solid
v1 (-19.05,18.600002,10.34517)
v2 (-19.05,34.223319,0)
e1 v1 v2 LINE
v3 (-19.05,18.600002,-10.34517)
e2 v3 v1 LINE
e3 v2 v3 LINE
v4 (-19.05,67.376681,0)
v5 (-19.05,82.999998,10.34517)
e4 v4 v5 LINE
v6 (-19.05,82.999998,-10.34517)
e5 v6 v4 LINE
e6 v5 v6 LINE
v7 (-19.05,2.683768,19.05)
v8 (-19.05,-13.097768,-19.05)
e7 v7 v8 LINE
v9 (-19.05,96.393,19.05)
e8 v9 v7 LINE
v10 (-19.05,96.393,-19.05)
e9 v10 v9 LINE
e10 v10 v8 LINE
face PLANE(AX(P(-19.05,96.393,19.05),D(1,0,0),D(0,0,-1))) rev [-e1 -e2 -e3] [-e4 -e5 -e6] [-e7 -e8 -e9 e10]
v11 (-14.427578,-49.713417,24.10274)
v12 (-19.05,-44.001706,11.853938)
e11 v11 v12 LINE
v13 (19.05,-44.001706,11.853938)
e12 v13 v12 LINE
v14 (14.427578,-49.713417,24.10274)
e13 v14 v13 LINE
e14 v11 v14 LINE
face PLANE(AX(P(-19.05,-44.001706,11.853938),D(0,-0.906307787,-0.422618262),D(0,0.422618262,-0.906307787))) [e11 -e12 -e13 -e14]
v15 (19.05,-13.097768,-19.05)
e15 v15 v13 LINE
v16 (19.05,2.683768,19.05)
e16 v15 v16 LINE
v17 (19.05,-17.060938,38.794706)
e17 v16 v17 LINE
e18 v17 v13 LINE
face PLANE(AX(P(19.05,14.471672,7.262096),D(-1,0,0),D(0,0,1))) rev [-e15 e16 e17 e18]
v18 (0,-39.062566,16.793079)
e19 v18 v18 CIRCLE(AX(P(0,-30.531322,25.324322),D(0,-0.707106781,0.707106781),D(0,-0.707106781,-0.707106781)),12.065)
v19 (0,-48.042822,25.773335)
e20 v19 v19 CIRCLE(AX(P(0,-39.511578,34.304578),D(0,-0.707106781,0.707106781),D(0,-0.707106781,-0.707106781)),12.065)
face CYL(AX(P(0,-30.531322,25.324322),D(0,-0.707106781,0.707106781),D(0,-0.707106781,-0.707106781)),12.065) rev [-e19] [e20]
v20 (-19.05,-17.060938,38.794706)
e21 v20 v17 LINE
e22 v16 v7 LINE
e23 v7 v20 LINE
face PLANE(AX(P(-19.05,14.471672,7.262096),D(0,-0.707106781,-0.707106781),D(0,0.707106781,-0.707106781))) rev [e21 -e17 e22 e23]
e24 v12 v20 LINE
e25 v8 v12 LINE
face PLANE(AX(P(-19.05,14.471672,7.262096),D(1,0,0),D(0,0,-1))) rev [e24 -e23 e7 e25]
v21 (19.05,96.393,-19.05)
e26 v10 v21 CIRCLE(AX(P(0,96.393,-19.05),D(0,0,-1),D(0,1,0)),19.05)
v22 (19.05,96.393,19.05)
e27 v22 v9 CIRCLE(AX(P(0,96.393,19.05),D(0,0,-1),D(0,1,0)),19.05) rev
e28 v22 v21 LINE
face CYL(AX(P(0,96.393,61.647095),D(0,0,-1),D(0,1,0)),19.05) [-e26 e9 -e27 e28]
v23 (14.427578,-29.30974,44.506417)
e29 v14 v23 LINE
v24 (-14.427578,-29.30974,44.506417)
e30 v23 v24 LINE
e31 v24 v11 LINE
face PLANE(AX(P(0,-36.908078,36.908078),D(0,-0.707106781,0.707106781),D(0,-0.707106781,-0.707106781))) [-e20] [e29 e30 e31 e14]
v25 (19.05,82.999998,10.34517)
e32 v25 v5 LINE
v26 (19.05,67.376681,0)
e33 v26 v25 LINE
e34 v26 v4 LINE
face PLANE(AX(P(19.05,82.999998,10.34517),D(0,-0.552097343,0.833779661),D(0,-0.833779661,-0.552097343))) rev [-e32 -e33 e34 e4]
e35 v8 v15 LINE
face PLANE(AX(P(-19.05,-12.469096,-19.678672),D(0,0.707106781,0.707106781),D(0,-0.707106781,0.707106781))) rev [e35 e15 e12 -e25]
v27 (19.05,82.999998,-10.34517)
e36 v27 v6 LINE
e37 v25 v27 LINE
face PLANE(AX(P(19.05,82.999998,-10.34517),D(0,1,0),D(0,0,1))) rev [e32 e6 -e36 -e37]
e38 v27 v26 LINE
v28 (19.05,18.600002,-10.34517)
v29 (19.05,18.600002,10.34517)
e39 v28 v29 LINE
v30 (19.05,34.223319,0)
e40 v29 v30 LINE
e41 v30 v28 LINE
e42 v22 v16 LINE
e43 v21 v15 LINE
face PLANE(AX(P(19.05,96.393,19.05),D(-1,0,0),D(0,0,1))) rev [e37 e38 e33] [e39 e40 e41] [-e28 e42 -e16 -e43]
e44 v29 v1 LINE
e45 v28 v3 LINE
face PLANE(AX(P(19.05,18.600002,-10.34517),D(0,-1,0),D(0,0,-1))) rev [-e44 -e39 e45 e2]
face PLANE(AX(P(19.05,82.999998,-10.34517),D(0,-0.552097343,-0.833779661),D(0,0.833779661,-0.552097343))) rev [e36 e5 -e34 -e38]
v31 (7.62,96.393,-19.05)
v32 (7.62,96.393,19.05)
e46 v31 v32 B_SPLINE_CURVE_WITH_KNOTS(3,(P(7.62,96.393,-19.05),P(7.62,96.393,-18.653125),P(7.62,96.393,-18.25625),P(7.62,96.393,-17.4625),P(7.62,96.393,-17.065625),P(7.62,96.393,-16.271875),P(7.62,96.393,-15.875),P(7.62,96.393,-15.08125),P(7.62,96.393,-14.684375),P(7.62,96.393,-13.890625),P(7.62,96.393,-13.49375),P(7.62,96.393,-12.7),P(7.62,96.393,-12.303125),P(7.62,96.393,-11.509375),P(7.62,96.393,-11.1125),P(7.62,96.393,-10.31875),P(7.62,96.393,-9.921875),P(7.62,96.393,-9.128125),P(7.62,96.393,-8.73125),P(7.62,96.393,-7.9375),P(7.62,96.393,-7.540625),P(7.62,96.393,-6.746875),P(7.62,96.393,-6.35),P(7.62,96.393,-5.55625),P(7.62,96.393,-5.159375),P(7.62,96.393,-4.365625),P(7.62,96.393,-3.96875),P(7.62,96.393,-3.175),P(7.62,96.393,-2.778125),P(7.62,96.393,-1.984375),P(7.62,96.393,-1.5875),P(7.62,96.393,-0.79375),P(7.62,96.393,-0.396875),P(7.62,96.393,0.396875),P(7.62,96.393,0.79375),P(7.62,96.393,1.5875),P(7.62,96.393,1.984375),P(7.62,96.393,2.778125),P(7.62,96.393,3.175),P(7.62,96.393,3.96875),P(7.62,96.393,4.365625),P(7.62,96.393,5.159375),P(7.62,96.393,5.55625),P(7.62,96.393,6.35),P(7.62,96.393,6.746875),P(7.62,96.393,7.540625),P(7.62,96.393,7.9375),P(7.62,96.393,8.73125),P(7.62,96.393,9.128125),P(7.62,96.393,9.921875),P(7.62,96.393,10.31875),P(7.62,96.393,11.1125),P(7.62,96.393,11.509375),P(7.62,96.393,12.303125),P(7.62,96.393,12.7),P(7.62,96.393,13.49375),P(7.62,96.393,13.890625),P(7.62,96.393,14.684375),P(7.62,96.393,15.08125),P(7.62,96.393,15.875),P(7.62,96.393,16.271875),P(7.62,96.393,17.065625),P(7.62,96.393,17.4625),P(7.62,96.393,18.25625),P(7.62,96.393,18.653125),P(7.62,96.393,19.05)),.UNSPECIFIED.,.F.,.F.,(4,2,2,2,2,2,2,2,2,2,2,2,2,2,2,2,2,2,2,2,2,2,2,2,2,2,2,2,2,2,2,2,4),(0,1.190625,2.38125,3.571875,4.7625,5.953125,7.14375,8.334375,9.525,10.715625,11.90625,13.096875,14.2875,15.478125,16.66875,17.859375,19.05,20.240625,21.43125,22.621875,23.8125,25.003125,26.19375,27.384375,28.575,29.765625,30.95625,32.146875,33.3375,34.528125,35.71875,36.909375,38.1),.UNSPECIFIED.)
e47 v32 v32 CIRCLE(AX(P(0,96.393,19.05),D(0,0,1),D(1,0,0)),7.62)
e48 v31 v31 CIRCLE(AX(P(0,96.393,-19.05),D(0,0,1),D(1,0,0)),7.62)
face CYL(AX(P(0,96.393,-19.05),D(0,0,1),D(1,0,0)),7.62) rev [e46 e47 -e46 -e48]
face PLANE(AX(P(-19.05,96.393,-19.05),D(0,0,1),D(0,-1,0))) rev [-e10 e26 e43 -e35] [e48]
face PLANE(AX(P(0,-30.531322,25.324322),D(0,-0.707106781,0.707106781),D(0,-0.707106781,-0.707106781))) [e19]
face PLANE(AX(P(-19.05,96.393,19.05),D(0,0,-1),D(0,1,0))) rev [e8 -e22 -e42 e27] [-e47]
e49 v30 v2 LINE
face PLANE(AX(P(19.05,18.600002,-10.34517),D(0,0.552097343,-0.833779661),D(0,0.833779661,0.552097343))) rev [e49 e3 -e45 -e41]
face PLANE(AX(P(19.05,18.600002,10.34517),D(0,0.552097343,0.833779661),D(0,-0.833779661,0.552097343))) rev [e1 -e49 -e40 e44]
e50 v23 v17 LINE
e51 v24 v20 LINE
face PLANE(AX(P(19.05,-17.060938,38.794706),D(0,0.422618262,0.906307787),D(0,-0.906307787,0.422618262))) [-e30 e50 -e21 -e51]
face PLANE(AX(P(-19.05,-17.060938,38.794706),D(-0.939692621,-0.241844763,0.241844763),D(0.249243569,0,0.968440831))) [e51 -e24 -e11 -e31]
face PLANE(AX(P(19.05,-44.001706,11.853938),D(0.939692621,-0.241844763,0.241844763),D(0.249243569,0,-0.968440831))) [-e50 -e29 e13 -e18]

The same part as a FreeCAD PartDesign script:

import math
import FreeCAD as App
import Part
import Sketcher

V = App.Vector
Q = App.Units.Quantity


def add_polygon(sketch, points):
    """Adds a closed chain of lines whose ends are joined by coincident constraints."""
    first, n = sketch.GeometryCount, len(points)
    for a, b in zip(points, points[1:] + points[:1]):
        sketch.addGeometry(Part.LineSegment(App.Vector(*a, 0), App.Vector(*b, 0)), False)
    for i in range(n):
        sketch.addConstraint(Sketcher.Constraint("Coincident", first + i, 2, first + (i + 1) % n, 1))

doc = App.newDocument("Part")
body = doc.addObject("PartDesign::Body", "Body")

# Sketch on XZ plane
sketch1 = body.newObject("Sketcher::SketchObject", "Sketch")
sketch1.AttachmentSupport = (doc.getObject("XZ_Plane"), [""])
sketch1.MapMode = "FlatFace"
sketch1.AttachmentOffset = App.Placement(V(0, 0, -3.795 * 25.4), App.Rotation())
add_polygon(sketch1, [(-19, -19), (-19, 19), (19, 19), (19, -19)])  # lines 0-3
sketch1.addConstraint([
    Sketcher.Constraint("Vertical", 0),
    Sketcher.Constraint("Horizontal", 1),
    Sketcher.Constraint("Vertical", 2),
    Sketcher.Constraint("Horizontal", 3),
    Sketcher.Constraint("Symmetric", 0, 2, 2, 2, -1, 1),
    Sketcher.Constraint("Equal", 3, 0),
    Sketcher.Constraint("DistanceX", 1, 1, 1, 2, Q("1.5 in")),
])

# Sketch on YZ plane
sketch2 = body.newObject("Sketcher::SketchObject", "Sketch001")
sketch2.AttachmentSupport = (doc.getObject("YZ_Plane"), [""])
sketch2.MapMode = "FlatFace"
sketch2.addGeometry([
    Part.LineSegment(V(96, 0, 0), V(-5, 0, 0)),
    Part.LineSegment(V(-5, 0, 0), V(-31, 25, 0)),
], False)
sketch2.addConstraint([
    Sketcher.Constraint("Coincident", 0, 2, 1, 1),
    Sketcher.Constraint("Horizontal", 0),
    Sketcher.Constraint("PointOnObject", 0, 1, -1),
    Sketcher.Constraint("DistanceX", 0, 2, 0, 1, Q("4 in")),
    Sketcher.Constraint("Angle", 1, Q("135 deg")),
    Sketcher.Constraint("Distance", 1, Q("1.41 in")),
    Sketcher.Constraint("DistanceX", -1, 1, 0, 1, Q("3.795 in")),
])
doc.recompute()

additivepipe = body.newObject("PartDesign::AdditivePipe", "AdditivePipe")
additivepipe.Profile = sketch1
additivepipe.Spine = (sketch2, ["Edge1", "Edge2"])
additivepipe.Transition = "Right corner"

# Sketch on an angled plane
sketch3 = body.newObject("Sketcher::SketchObject", "Sketch002")
sketch3.Placement = App.Placement(V(0, -27.927822, 27.927822), App.Rotation(V(1, 0, 0), V(0, 0.707106781, 0.707106781), V(0, -0.707106781, 0.707106781), "ZXY"))
add_polygon(sketch3, [(-19, 15), (-19, -23), (19, -23), (19, 15)])  # lines 0-3
sketch3.addConstraint([
    Sketcher.Constraint("Vertical", 0),
    Sketcher.Constraint("Horizontal", 1),
    Sketcher.Constraint("Vertical", 2),
    Sketcher.Constraint("Horizontal", 3),
    Sketcher.Constraint("Equal", 3, 0),
    Sketcher.Constraint("DistanceX", 1, 1, 1, 2, Q("1.5 in")),
    Sketcher.Constraint("DistanceX", 0, 2, -1, 1, Q("0.75 in")),
    Sketcher.Constraint("DistanceY", 0, 2, -1, 1, 22.731905),
])
pad1 = body.newObject("PartDesign::Pad", "Pad")
pad1.Profile = sketch3
pad1.Length = Q("0.5 in")
pad1.TaperAngle = -20

# Sketch on XY plane
sketch4 = body.newObject("Sketcher::SketchObject", "Sketch003")
sketch4.AttachmentSupport = (doc.getObject("XY_Plane"), [""])
sketch4.MapMode = "FlatFace"
sketch4.AttachmentOffset = App.Placement(V(0, 0, -0.75 * 25.4), App.Rotation())
sketch4.addGeometry([
    Part.LineSegment(V(19, 96, 0), V(-19, 96, 0)),
    Part.ArcOfCircle(Part.Circle(V(0, 96, 0), V(0, 0, 1), 19), math.radians(0), math.radians(180)),
], False)
sketch4.addConstraint([
    Sketcher.Constraint("Coincident", 0, 1, 1, 1),
    Sketcher.Constraint("Coincident", 1, 2, 0, 2),
    Sketcher.Constraint("Horizontal", 0),
    Sketcher.Constraint("PointOnObject", 1, 3, -2),
    Sketcher.Constraint("Horizontal", 1, 3, 0, 1),
    Sketcher.Constraint("Radius", 1, Q("0.75 in")),
    Sketcher.Constraint("DistanceY", -1, 1, 1, 3, Q("3.795 in")),
])
pad2 = body.newObject("PartDesign::Pad", "Pad001")
pad2.Profile = sketch4
pad2.Length = Q("1.5 in")

# Sketch on XY plane
sketch5 = body.newObject("Sketcher::SketchObject", "Sketch004")
sketch5.AttachmentSupport = (doc.getObject("XY_Plane"), [""])
sketch5.MapMode = "FlatFace"
sketch5.AttachmentOffset = App.Placement(V(0, 0, 0.75 * 25.4), App.Rotation())
sketch5.addGeometry(Part.Circle(V(0, 96, 0), V(0, 0, 1), 8), False)
sketch5.addConstraint([
    Sketcher.Constraint("PointOnObject", 0, 3, -2),
    Sketcher.Constraint("Diameter", 0, Q("0.6 in")),
    Sketcher.Constraint("DistanceY", -1, 1, 0, 3, Q("3.795 in")),
])
pocket1 = body.newObject("PartDesign::Pocket", "Pocket")
pocket1.Profile = sketch5
pocket1.Length = Q("1.5 in")

# Sketch on an angled plane
sketch6 = body.newObject("Sketcher::SketchObject", "Sketch005")
sketch6.Placement = App.Placement(V(0, -36.908078, 36.908078), App.Rotation(V(1, 0, 0), V(0, 0.707106781, 0.707106781), V(0, -0.707106781, 0.707106781), "ZXY"))
sketch6.addGeometry(Part.Circle(V(0, -4, 0), V(0, 0, 1), 12), False)
sketch6.addConstraint([
    Sketcher.Constraint("PointOnObject", 0, 3, -2),
    Sketcher.Constraint("Diameter", 0, Q("0.95 in")),
    Sketcher.Constraint("DistanceY", 0, 3, -1, 1, 3.681905),
])
pocket2 = body.newObject("PartDesign::Pocket", "Pocket001")
pocket2.Profile = sketch6
pocket2.Length = Q("0.5 in")

# Sketch on YZ plane
sketch7 = body.newObject("Sketcher::SketchObject", "Sketch006")
sketch7.AttachmentSupport = (doc.getObject("YZ_Plane"), [""])
sketch7.MapMode = "FlatFace"
sketch7.AttachmentOffset = App.Placement(V(0, 0, -0.75 * 25.4), App.Rotation())
add_polygon(sketch7, [(83, 10), (83, -10), (67, 0)])  # lines 0-2
add_polygon(sketch7, [(19, 10), (34, 0), (19, -10)])  # lines 3-5
sketch7.addConstraint([
    Sketcher.Constraint("Vertical", 0),
    Sketcher.Constraint("Vertical", 5),
    Sketcher.Constraint("PointOnObject", 1, 2, -1),
    Sketcher.Constraint("PointOnObject", 3, 2, -1),
    Sketcher.Constraint("Parallel", 1, 3),
    Sketcher.Constraint("Parallel", 2, 4),
    Sketcher.Constraint("Horizontal", 0, 2, 4, 2),
    Sketcher.Constraint("Horizontal", 2, 2, 5, 2),
    Sketcher.Constraint("DistanceY", 0, 2, 0, 1, 20.690339),
    Sketcher.Constraint("DistanceX", -1, 1, 1, 2, 67.376681),
    Sketcher.Constraint("DistanceX", -1, 1, 3, 2, 34.223319),
    Sketcher.Constraint("DistanceX", 3, 2, 0, 2, 48.776679),
])
pocket3 = body.newObject("PartDesign::Pocket", "Pocket002")
pocket3.Profile = sketch7
pocket3.Length = Q("1.5 in")
pocket3.Reversed = True

doc.recompute()
